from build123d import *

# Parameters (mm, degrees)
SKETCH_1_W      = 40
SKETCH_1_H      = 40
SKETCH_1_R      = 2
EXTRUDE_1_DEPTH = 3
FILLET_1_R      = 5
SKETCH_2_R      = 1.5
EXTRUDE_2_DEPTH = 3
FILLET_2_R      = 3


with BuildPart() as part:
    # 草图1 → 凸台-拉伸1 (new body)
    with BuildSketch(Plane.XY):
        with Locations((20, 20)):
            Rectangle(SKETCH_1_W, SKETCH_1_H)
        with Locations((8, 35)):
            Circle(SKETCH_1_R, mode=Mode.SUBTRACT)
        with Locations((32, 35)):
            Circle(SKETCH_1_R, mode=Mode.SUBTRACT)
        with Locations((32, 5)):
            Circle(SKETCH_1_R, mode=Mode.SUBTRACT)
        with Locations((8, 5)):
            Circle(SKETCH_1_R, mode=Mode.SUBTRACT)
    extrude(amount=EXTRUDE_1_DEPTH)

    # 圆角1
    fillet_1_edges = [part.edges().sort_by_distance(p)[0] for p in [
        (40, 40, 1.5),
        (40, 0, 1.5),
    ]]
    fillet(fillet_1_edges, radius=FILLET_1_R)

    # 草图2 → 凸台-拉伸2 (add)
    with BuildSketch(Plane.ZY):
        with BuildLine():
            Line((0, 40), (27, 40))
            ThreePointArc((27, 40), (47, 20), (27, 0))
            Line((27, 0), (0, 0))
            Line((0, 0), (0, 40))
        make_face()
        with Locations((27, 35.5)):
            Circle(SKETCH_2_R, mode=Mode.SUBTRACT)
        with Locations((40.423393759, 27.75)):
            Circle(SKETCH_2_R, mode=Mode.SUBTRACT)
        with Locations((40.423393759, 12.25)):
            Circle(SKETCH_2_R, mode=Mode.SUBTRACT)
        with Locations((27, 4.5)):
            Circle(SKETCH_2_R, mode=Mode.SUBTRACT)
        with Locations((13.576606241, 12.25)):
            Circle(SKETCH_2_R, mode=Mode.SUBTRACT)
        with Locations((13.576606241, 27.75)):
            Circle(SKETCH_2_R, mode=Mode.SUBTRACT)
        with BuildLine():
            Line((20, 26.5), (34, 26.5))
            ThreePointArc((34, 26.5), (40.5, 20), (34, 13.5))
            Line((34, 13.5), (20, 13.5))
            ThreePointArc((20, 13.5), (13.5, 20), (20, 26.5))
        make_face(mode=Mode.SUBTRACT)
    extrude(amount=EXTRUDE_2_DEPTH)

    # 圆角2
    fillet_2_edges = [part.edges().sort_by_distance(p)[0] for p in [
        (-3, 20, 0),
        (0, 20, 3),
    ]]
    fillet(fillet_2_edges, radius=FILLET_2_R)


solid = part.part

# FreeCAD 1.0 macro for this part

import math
import FreeCAD as App
import Part
import Sketcher


def edges_at(feature, points):
    """Names of the edges that pass closest to the given points."""
    edges = feature.Shape.Edges
    near = lambda p: min(range(len(edges)), key=lambda i: edges[i].distToShape(Part.Vertex(*p))[0])
    return sorted({f"Edge{near(p) + 1}" for p in points})


def add_polygon(sketch, points):
    """Adds a closed chain of lines whose ends are joined by coincident constraints."""
    first, n = sketch.GeometryCount, len(points)
    for a, b in zip(points, points[1:] + points[:1]):
        sketch.addGeometry(Part.LineSegment(App.Vector(*a, 0), App.Vector(*b, 0)), False)
    for i in range(n):
        sketch.addConstraint(Sketcher.Constraint("Coincident", first + i, 2, first + (i + 1) % n, 1))

doc = App.newDocument("Part")
body = doc.addObject("PartDesign::Body", "Body")

# Sketch on XY plane
sketch1 = doc.addObject("Sketcher::SketchObject", "Sketch")
body.addObject(sketch1)
sketch1.AttachmentSupport = (doc.XY_Plane, [""])
sketch1.MapMode = "FlatFace"
add_polygon(sketch1, [(0, 40), (0, 0), (40, 0), (40, 40)])  # lines 0-3
sketch1.addGeometry(Part.Circle(App.Vector(8, 5, 0), App.Vector(0, 0, 1), 2), False)  # 4
sketch1.addGeometry(Part.Circle(App.Vector(32, 5, 0), App.Vector(0, 0, 1), 2), False)  # 5
sketch1.addGeometry(Part.Circle(App.Vector(8, 35, 0), App.Vector(0, 0, 1), 2), False)  # 6
sketch1.addGeometry(Part.Circle(App.Vector(32, 35, 0), App.Vector(0, 0, 1), 2), False)  # 7
sketch1.addConstraint(Sketcher.Constraint("Vertical", 0))
sketch1.addConstraint(Sketcher.Constraint("Horizontal", 1))
sketch1.addConstraint(Sketcher.Constraint("Vertical", 2))
sketch1.addConstraint(Sketcher.Constraint("Horizontal", 3))
sketch1.addConstraint(Sketcher.Constraint("Coincident", 0, 2, -1, 1))
sketch1.addConstraint(Sketcher.Constraint("Equal", 4, 5))
sketch1.addConstraint(Sketcher.Constraint("Equal", 5, 6))
sketch1.addConstraint(Sketcher.Constraint("Equal", 6, 7))
sketch1.addConstraint(Sketcher.Constraint("Horizontal", 4, 3, 5, 3))
sketch1.addConstraint(Sketcher.Constraint("Horizontal", 6, 3, 7, 3))
sketch1.addConstraint(Sketcher.Constraint("Vertical", 4, 3, 6, 3))
sketch1.addConstraint(Sketcher.Constraint("Vertical", 5, 3, 7, 3))
sketch1.addConstraint(Sketcher.Constraint("Equal", 3, 0))
sketch1.addConstraint(Sketcher.Constraint("Diameter", 4, 4.0))
sketch1.addConstraint(Sketcher.Constraint("DistanceX", 1, 1, 1, 2, 40.0))
sketch1.addConstraint(Sketcher.Constraint("DistanceX", -1, 1, 4, 3, 8.0))
sketch1.addConstraint(Sketcher.Constraint("DistanceY", -1, 1, 4, 3, 5.0))
sketch1.addConstraint(Sketcher.Constraint("DistanceX", -1, 1, 5, 3, 32.0))
sketch1.addConstraint(Sketcher.Constraint("DistanceY", -1, 1, 6, 3, 35.0))
pad1 = doc.addObject("PartDesign::Pad", "Pad")
body.addObject(pad1)
pad1.Profile = sketch1
pad1.Length = 3
doc.recompute()

fillet = doc.addObject("PartDesign::Fillet", "Fillet")
body.addObject(fillet)
fillet.Base = (pad1, edges_at(pad1, [(40, 40, 1.5), (40, 0, 1.5)]))
fillet.Radius = 5

# Sketch on YZ plane
sketch2 = doc.addObject("Sketcher::SketchObject", "Sketch001")
body.addObject(sketch2)
sketch2.AttachmentSupport = (doc.YZ_Plane, [""])
sketch2.MapMode = "FlatFace"
sketch2.addGeometry(Part.LineSegment(App.Vector(40, 27, 0), App.Vector(40, 0, 0)), False)
sketch2.addGeometry(Part.LineSegment(App.Vector(40, 0, 0), App.Vector(0, 0, 0)), False)
sketch2.addGeometry(Part.LineSegment(App.Vector(0, 0, 0), App.Vector(0, 27, 0)), False)
sketch2.addGeometry(Part.ArcOfCircle(Part.Circle(App.Vector(20, 27, 0), App.Vector(0, 0, 1), 20), math.radians(0), math.radians(180)), False)
sketch2.addGeometry(Part.Circle(App.Vector(12.2, 40.4, 0), App.Vector(0, 0, 1), 1.5), False)
sketch2.addGeometry(Part.Circle(App.Vector(4.5, 27, 0), App.Vector(0, 0, 1), 1.5), False)
sketch2.addGeometry(Part.Circle(App.Vector(12.2, 13.6, 0), App.Vector(0, 0, 1), 1.5), False)
sketch2.addGeometry(Part.Circle(App.Vector(27.8, 40.4, 0), App.Vector(0, 0, 1), 1.5), False)
sketch2.addGeometry(Part.LineSegment(App.Vector(26.5, 20, 0), App.Vector(26.5, 34, 0)), False)
sketch2.addGeometry(Part.ArcOfCircle(Part.Circle(App.Vector(20, 34, 0), App.Vector(0, 0, 1), 6.5), math.radians(0), math.radians(180)), False)
sketch2.addGeometry(Part.LineSegment(App.Vector(13.5, 34, 0), App.Vector(13.5, 20, 0)), False)
sketch2.addGeometry(Part.ArcOfCircle(Part.Circle(App.Vector(20, 20, 0), App.Vector(0, 0, 1), 6.5), math.radians(180), math.radians(360)), False)
sketch2.addGeometry(Part.Circle(App.Vector(27.8, 13.6, 0), App.Vector(0, 0, 1), 1.5), False)
sketch2.addGeometry(Part.Circle(App.Vector(35.5, 27, 0), App.Vector(0, 0, 1), 1.5), False)
sketch2.addConstraint(Sketcher.Constraint("Coincident", 0, 2, 1, 1))
sketch2.addConstraint(Sketcher.Constraint("Coincident", 1, 2, 2, 1))
sketch2.addConstraint(Sketcher.Constraint("Tangent", 2, 2, 3, 2))
sketch2.addConstraint(Sketcher.Constraint("Tangent", 3, 1, 0, 1))
sketch2.addConstraint(Sketcher.Constraint("Tangent", 8, 2, 9, 1))
sketch2.addConstraint(Sketcher.Constraint("Tangent", 9, 2, 10, 1))
sketch2.addConstraint(Sketcher.Constraint("Tangent", 10, 2, 11, 1))
sketch2.addConstraint(Sketcher.Constraint("Tangent", 11, 2, 8, 1))
sketch2.addConstraint(Sketcher.Constraint("Vertical", 0))
sketch2.addConstraint(Sketcher.Constraint("Horizontal", 1))
sketch2.addConstraint(Sketcher.Constraint("Vertical", 2))
sketch2.addConstraint(Sketcher.Constraint("Vertical", 8))
sketch2.addConstraint(Sketcher.Constraint("Vertical", 10))
sketch2.addConstraint(Sketcher.Constraint("Coincident", 1, 2, -1, 1))
sketch2.addConstraint(Sketcher.Constraint("Equal", 4, 5))
sketch2.addConstraint(Sketcher.Constraint("Equal", 5, 6))
sketch2.addConstraint(Sketcher.Constraint("Equal", 6, 7))
sketch2.addConstraint(Sketcher.Constraint("Equal", 7, 12))
sketch2.addConstraint(Sketcher.Constraint("Equal", 12, 13))
sketch2.addConstraint(Sketcher.Constraint("Horizontal", 3, 3, 5, 3))
sketch2.addConstraint(Sketcher.Constraint("Horizontal", 4, 3, 7, 3))
sketch2.addConstraint(Sketcher.Constraint("Horizontal", 6, 3, 12, 3))
sketch2.addConstraint(Sketcher.Constraint("Horizontal", 5, 3, 13, 3))
sketch2.addConstraint(Sketcher.Constraint("Vertical", 4, 3, 6, 3))
sketch2.addConstraint(Sketcher.Constraint("Vertical", 3, 3, 9, 3))
sketch2.addConstraint(Sketcher.Constraint("Vertical", 7, 3, 12, 3))
sketch2.addConstraint(Sketcher.Constraint("Diameter", 4, 3.0))
sketch2.addConstraint(Sketcher.Constraint("Radius", 3, 20.0))
sketch2.addConstraint(Sketcher.Constraint("Radius", 9, 6.5))
sketch2.addConstraint(Sketcher.Constraint("DistanceY", 0, 2, 0, 1, 27.0))
sketch2.addConstraint(Sketcher.Constraint("DistanceY", 8, 1, 8, 2, 14.0))
sketch2.addConstraint(Sketcher.Constraint("DistanceY", -1, 1, 9, 3, 34.0))
sketch2.addConstraint(Sketcher.Constraint("DistanceX", 8, 2, 13, 3, 9.0))
sketch2.addConstraint(Sketcher.Constraint("DistanceX", 5, 3, 9, 2, 9.0))
sketch2.addConstraint(Sketcher.Constraint("DistanceX", 4, 3, 7, 3, 15.5))
sketch2.addConstraint(Sketcher.Constraint("DistanceX", -1, 1, 4, 3, 12.25))
sketch2.addConstraint(Sketcher.Constraint("DistanceY", -1, 1, 4, 3, 40.423394))
sketch2.addConstraint(Sketcher.Constraint("DistanceY", -1, 1, 6, 3, 13.576606))
pad2 = doc.addObject("PartDesign::Pad", "Pad001")
body.addObject(pad2)
pad2.Profile = sketch2
pad2.Length = 3
pad2.Reversed = True
doc.recompute()

fillet2 = doc.addObject("PartDesign::Fillet", "Fillet001")
body.addObject(fillet2)
fillet2.Base = (pad2, edges_at(pad2, [(-3, 20, 0), (0, 20, 3)]))
fillet2.Radius = 3

doc.recompute()
